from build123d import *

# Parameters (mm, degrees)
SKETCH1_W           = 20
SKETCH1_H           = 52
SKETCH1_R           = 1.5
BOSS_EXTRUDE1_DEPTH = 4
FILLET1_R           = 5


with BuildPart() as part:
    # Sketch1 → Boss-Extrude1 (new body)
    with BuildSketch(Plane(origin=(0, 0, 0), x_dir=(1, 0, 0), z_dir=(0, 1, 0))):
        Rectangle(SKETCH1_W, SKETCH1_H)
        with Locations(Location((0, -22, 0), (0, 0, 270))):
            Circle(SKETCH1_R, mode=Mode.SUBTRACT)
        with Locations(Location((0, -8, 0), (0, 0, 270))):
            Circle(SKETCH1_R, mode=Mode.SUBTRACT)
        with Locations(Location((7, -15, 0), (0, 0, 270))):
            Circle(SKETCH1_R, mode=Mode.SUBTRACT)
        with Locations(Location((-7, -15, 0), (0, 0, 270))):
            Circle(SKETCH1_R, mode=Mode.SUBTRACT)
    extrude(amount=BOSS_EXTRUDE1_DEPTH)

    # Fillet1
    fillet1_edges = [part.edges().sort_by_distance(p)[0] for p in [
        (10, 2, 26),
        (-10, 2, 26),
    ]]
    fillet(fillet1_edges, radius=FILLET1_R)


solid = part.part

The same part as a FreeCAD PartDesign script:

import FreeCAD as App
import Part
import Sketcher

V = App.Vector


def edges_at(feature, points):
    """Names of the edges that pass closest to the given points."""
    edges = feature.Shape.Edges
    near = lambda p: min(range(len(edges)), key=lambda i: edges[i].distToShape(Part.Vertex(*p))[0])
    return sorted({f"Edge{near(p) + 1}" for p in points})


def add_polygon(sketch, points):
    """Adds a closed chain of lines whose ends are joined by coincident constraints."""
    first, n = sketch.GeometryCount, len(points)
    for a, b in zip(points, points[1:] + points[:1]):
        sketch.addGeometry(Part.LineSegment(App.Vector(*a, 0), App.Vector(*b, 0)), False)
    for i in range(n):
        sketch.addConstraint(Sketcher.Constraint("Coincident", first + i, 2, first + (i + 1) % n, 1))

doc = App.newDocument("Part")
body = doc.addObject("PartDesign::Body", "Body")

sketch1 = body.newObject("Sketcher::SketchObject", "Sketch")
sketch1.AttachmentSupport = (doc.getObject("XZ_Plane"), [""])
sketch1.MapMode = "FlatFace"
add_polygon(sketch1, [(-10, -26), (-10, 26), (10, 26), (10, -26)])
sketch1.addGeometry(Part.Circle(V(0, 22, 0), V(0, 0, 1), 1.5), False)
sketch1.addGeometry(Part.Circle(V(-7, 15, 0), V(0, 0, 1), 1.5), False)
sketch1.addGeometry(Part.Circle(V(7, 15, 0), V(0, 0, 1), 1.5), False)
sketch1.addGeometry(Part.Circle(V(0, 8, 0), V(0, 0, 1), 1.5), False)
sketch1.addConstraint([
    Sketcher.Constraint("Vertical", 0),
    Sketcher.Constraint("Horizontal", 1),
    Sketcher.Constraint("Vertical", 2),
    Sketcher.Constraint("Horizontal", 3),
    Sketcher.Constraint("Equal", 4, 5),
    Sketcher.Constraint("Equal", 5, 6),
    Sketcher.Constraint("Equal", 6, 7),
    Sketcher.Constraint("Symmetric", 0, 2, 2, 2, -1, 1),
    Sketcher.Constraint("Symmetric", 5, 3, 6, 3, -2),
    Sketcher.Constraint("PointOnObject", 4, 3, -2),
    Sketcher.Constraint("PointOnObject", 7, 3, -2),
    Sketcher.Constraint("Diameter", 4, 3.0),
    Sketcher.Constraint("DistanceX", 1, 1, 1, 2, 20.0),
    Sketcher.Constraint("DistanceY", 0, 1, 0, 2, 52.0),
    Sketcher.Constraint("DistanceY", -1, 1, 4, 3, 22.0),
    Sketcher.Constraint("DistanceX", 5, 3, -1, 1, 7.0),
    Sketcher.Constraint("DistanceY", -1, 1, 5, 3, 15.0),
    Sketcher.Constraint("DistanceY", -1, 1, 7, 3, 8.0),
])
pad1 = body.newObject("PartDesign::Pad", "Pad")
pad1.Profile = sketch1
pad1.Length = 4
pad1.Reversed = True
doc.recompute()

fillet = body.newObject("PartDesign::Fillet", "Fillet")
fillet.Base = (pad1, edges_at(pad1, [(10, 2, 26), (-10, 2, 26)]))
fillet.Radius = 5

doc.recompute()
